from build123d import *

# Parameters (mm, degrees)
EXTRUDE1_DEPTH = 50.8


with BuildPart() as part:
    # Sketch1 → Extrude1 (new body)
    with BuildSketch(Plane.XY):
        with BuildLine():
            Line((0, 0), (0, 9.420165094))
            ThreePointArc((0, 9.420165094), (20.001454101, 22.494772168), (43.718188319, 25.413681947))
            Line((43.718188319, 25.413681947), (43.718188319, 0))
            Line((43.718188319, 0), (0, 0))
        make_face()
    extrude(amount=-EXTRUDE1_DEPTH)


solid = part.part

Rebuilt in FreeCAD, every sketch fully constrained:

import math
import FreeCAD as App
import Part
import Sketcher

doc = App.newDocument("Part")
params = doc.addObject("Spreadsheet::Sheet", "Params")
for row, (alias, value) in enumerate([
    ("pad1_length", "2 in"),
], start=1):
    params.set(f"A{row}", alias)
    params.set(f"B{row}", "=" + value)
    params.setAlias(f"B{row}", alias)

body = doc.addObject("PartDesign::Body", "Body")

sketch1 = body.newObject("Sketcher::SketchObject", "Sketch")
sketch1.AttachmentSupport = (doc.getObject("XY_Plane"), [""])
sketch1.MapMode = "FlatFace"
sketch1.addGeometry(Part.LineSegment(App.Vector(0, 9, 0), App.Vector(0, 0, 0)), False)
sketch1.addGeometry(Part.LineSegment(App.Vector(0, 0, 0), App.Vector(44, 0, 0)), False)
sketch1.addGeometry(Part.LineSegment(App.Vector(44, 0, 0), App.Vector(44, 25, 0)), False)
sketch1.addGeometry(Part.ArcOfCircle(Part.Circle(App.Vector(38, -27, 0), App.Vector(0, 0, 1), 53), math.radians(84), math.radians(136)), False)
sketch1.addConstraint(Sketcher.Constraint("Coincident", 0, 2, 1, 1))
sketch1.addConstraint(Sketcher.Constraint("Coincident", 1, 2, 2, 1))
sketch1.addConstraint(Sketcher.Constraint("Coincident", 2, 2, 3, 1))
sketch1.addConstraint(Sketcher.Constraint("Coincident", 3, 2, 0, 1))
sketch1.addConstraint(Sketcher.Constraint("Vertical", 0))
sketch1.addConstraint(Sketcher.Constraint("Horizontal", 1))
sketch1.addConstraint(Sketcher.Constraint("Vertical", 2))
sketch1.addConstraint(Sketcher.Constraint("Coincident", 0, 2, -1, 1))
sketch1.addConstraint(Sketcher.Constraint("Radius", 3, 52.802497))
sketch1.addConstraint(Sketcher.Constraint("DistanceX", 1, 1, 1, 2, 43.718188))
sketch1.addConstraint(Sketcher.Constraint("DistanceY", 2, 1, 2, 2, 25.413682))
sketch1.addConstraint(Sketcher.Constraint("DistanceY", 0, 2, 0, 1, 9.420165))
pad1 = body.newObject("PartDesign::Pad", "Pad")
pad1.Profile = sketch1
pad1.setExpression("Length", "Params.pad1_length")
pad1.Reversed = True

doc.recompute()
